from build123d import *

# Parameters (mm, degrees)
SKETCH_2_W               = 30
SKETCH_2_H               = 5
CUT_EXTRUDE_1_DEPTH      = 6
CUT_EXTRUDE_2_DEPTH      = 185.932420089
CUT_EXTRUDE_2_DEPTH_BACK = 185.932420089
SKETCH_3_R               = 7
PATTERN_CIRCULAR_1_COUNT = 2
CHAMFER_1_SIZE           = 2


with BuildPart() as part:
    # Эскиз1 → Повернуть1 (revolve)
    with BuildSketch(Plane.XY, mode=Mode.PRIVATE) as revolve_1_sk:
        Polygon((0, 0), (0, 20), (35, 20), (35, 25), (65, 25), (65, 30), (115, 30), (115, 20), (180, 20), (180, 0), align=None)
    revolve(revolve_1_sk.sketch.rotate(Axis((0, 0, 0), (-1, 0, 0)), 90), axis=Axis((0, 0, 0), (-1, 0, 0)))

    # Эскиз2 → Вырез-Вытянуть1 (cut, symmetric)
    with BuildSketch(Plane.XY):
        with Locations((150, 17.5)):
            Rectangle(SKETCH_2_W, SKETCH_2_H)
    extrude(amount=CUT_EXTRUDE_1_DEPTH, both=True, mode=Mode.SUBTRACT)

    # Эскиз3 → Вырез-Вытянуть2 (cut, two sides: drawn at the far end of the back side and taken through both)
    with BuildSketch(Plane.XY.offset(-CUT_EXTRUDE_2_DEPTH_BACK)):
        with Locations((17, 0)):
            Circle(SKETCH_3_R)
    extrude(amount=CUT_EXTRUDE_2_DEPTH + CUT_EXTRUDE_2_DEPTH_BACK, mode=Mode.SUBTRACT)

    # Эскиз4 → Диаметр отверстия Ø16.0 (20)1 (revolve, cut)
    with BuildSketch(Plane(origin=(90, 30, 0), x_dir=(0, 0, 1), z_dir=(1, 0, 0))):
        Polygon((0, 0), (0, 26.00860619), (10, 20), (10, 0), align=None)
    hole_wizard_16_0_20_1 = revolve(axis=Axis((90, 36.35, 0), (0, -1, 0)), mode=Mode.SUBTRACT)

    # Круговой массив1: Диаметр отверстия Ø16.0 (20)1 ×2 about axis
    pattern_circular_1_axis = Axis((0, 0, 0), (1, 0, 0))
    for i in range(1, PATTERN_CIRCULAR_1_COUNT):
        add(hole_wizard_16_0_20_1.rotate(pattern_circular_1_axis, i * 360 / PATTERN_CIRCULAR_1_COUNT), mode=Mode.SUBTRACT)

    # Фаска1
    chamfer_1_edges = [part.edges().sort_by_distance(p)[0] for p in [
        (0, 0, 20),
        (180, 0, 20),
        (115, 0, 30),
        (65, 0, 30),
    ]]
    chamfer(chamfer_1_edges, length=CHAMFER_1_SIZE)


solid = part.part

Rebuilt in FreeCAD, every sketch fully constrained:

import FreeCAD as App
import Part
import Sketcher
Q = App.Units.Quantity


def edges_at(feature, points):
    """Names of the edges that pass closest to the given points."""
    edges = feature.Shape.Edges
    near = lambda p: min(range(len(edges)), key=lambda i: edges[i].distToShape(Part.Vertex(*p))[0])
    return sorted({f"Edge{near(p) + 1}" for p in points})

doc = App.newDocument("Part")
params = doc.addObject("Spreadsheet::Sheet", "Params")
for row, (alias, value) in enumerate([
    ("sketch1_width", "180 mm"),
    ("sketch1_width2", "65 mm"),
    ("sketch1_width3", "50 mm"),
    ("sketch1_width4", "30 mm"),
    ("sketch1_height", "20 mm"),
    ("revolution_angle", "360 deg"),
    ("sketch2_width", "30 mm"),
    ("sketch2_height", "5 mm"),
    ("pocket1_length", "12 mm"),
    ("sketch3_diameter", "14 mm"),
    ("sketch4_width", "20 mm"),
    ("sketch4_height", "10 mm"),
    ("groove_angle", "360 deg"),
    ("chamfer_size", "2 mm"),
], start=1):
    params.set(f"A{row}", alias)
    params.set(f"B{row}", "=" + value)
    params.setAlias(f"B{row}", alias)

body = doc.addObject("PartDesign::Body", "Body")

# Sketch on XY plane
sketch1 = body.newObject("Sketcher::SketchObject", "Sketch")
sketch1.AttachmentSupport = (doc.getObject("XY_Plane"), [""])
sketch1.MapMode = "FlatFace"
sketch1.addGeometry(Part.LineSegment(App.Vector(0, 20, 0), App.Vector(0, 0, 0)), False)
sketch1.addGeometry(Part.LineSegment(App.Vector(0, 0, 0), App.Vector(180, 0, 0)), False)
sketch1.addGeometry(Part.LineSegment(App.Vector(180, 0, 0), App.Vector(180, 20, 0)), False)
sketch1.addGeometry(Part.LineSegment(App.Vector(180, 20, 0), App.Vector(115, 20, 0)), False)
sketch1.addGeometry(Part.LineSegment(App.Vector(115, 20, 0), App.Vector(115, 30, 0)), False)
sketch1.addGeometry(Part.LineSegment(App.Vector(115, 30, 0), App.Vector(65, 30, 0)), False)
sketch1.addGeometry(Part.LineSegment(App.Vector(65, 30, 0), App.Vector(65, 25, 0)), False)
sketch1.addGeometry(Part.LineSegment(App.Vector(65, 25, 0), App.Vector(35, 25, 0)), False)
sketch1.addGeometry(Part.LineSegment(App.Vector(35, 25, 0), App.Vector(35, 20, 0)), False)
sketch1.addGeometry(Part.LineSegment(App.Vector(35, 20, 0), App.Vector(0, 20, 0)), False)
sketch1.addConstraint(Sketcher.Constraint("Coincident", 0, 2, 1, 1))
sketch1.addConstraint(Sketcher.Constraint("Coincident", 1, 2, 2, 1))
sketch1.addConstraint(Sketcher.Constraint("Coincident", 2, 2, 3, 1))
sketch1.addConstraint(Sketcher.Constraint("Coincident", 3, 2, 4, 1))
sketch1.addConstraint(Sketcher.Constraint("Coincident", 4, 2, 5, 1))
sketch1.addConstraint(Sketcher.Constraint("Coincident", 5, 2, 6, 1))
sketch1.addConstraint(Sketcher.Constraint("Coincident", 6, 2, 7, 1))
sketch1.addConstraint(Sketcher.Constraint("Coincident", 7, 2, 8, 1))
sketch1.addConstraint(Sketcher.Constraint("Coincident", 8, 2, 9, 1))
sketch1.addConstraint(Sketcher.Constraint("Coincident", 9, 2, 0, 1))
sketch1.addConstraint(Sketcher.Constraint("Vertical", 0))
sketch1.addConstraint(Sketcher.Constraint("Horizontal", 1))
sketch1.addConstraint(Sketcher.Constraint("Vertical", 2))
sketch1.addConstraint(Sketcher.Constraint("Horizontal", 3))
sketch1.addConstraint(Sketcher.Constraint("Vertical", 4))
sketch1.addConstraint(Sketcher.Constraint("Horizontal", 5))
sketch1.addConstraint(Sketcher.Constraint("Vertical", 6))
sketch1.addConstraint(Sketcher.Constraint("Horizontal", 7))
sketch1.addConstraint(Sketcher.Constraint("Vertical", 8))
sketch1.addConstraint(Sketcher.Constraint("Horizontal", 9))
sketch1.addConstraint(Sketcher.Constraint("Coincident", 0, 2, -1, 1))
sketch1.addConstraint(Sketcher.Constraint("Horizontal", 3, 2, 8, 2))
sketch1.addConstraint(Sketcher.Constraint("Equal", 6, 8))
sketch1.addConstraint(Sketcher.Constraint("DistanceX", 1, 1, 1, 2, Q("180 mm")))
sketch1.addConstraint(Sketcher.Constraint("DistanceX", 3, 2, 3, 1, Q("65 mm")))
sketch1.addConstraint(Sketcher.Constraint("DistanceX", 5, 2, 5, 1, Q("50 mm")))
sketch1.addConstraint(Sketcher.Constraint("DistanceX", 7, 2, 7, 1, Q("30 mm")))
sketch1.addConstraint(Sketcher.Constraint("DistanceY", 0, 2, 0, 1, Q("20 mm")))
sketch1.addConstraint(Sketcher.Constraint("DistanceY", 4, 1, 4, 2, Q("10 mm")))
sketch1.setExpression("Constraints[23]", "Params.sketch1_width")
sketch1.setExpression("Constraints[24]", "Params.sketch1_width2")
sketch1.setExpression("Constraints[25]", "Params.sketch1_width3")
sketch1.setExpression("Constraints[26]", "Params.sketch1_width4")
sketch1.setExpression("Constraints[27]", "Params.sketch1_height")
revolution = body.newObject("PartDesign::Revolution", "Revolution")
revolution.Profile = sketch1
revolution.ReferenceAxis = (sketch1, ["H_Axis"])
revolution.setExpression("Angle", "Params.revolution_angle")

# Sketch on XY plane
sketch2 = body.newObject("Sketcher::SketchObject", "Sketch001")
sketch2.AttachmentSupport = (doc.getObject("XY_Plane"), [""])
sketch2.MapMode = "FlatFace"
sketch2.addGeometry(Part.LineSegment(App.Vector(135, 20, 0), App.Vector(135, 15, 0)), False)
sketch2.addGeometry(Part.LineSegment(App.Vector(135, 15, 0), App.Vector(165, 15, 0)), False)
sketch2.addGeometry(Part.LineSegment(App.Vector(165, 15, 0), App.Vector(165, 20, 0)), False)
sketch2.addGeometry(Part.LineSegment(App.Vector(165, 20, 0), App.Vector(135, 20, 0)), False)
sketch2.addConstraint(Sketcher.Constraint("Coincident", 0, 2, 1, 1))
sketch2.addConstraint(Sketcher.Constraint("Coincident", 1, 2, 2, 1))
sketch2.addConstraint(Sketcher.Constraint("Coincident", 2, 2, 3, 1))
sketch2.addConstraint(Sketcher.Constraint("Coincident", 3, 2, 0, 1))
sketch2.addConstraint(Sketcher.Constraint("Vertical", 0))
sketch2.addConstraint(Sketcher.Constraint("Horizontal", 1))
sketch2.addConstraint(Sketcher.Constraint("Vertical", 2))
sketch2.addConstraint(Sketcher.Constraint("Horizontal", 3))
sketch2.addConstraint(Sketcher.Constraint("DistanceX", 1, 1, 1, 2, Q("30 mm")))
sketch2.addConstraint(Sketcher.Constraint("DistanceY", 0, 2, 0, 1, Q("5 mm")))
sketch2.addConstraint(Sketcher.Constraint("DistanceX", -1, 1, 0, 2, Q("135 mm")))
sketch2.addConstraint(Sketcher.Constraint("DistanceY", -1, 1, 0, 2, Q("15 mm")))
sketch2.setExpression("Constraints[8]", "Params.sketch2_width")
sketch2.setExpression("Constraints[9]", "Params.sketch2_height")
pocket1 = body.newObject("PartDesign::Pocket", "Pocket")
pocket1.Profile = sketch2
pocket1.setExpression("Length", "Params.pocket1_length")
pocket1.Midplane = True

# Sketch on XY plane
sketch3 = body.newObject("Sketcher::SketchObject", "Sketch002")
sketch3.AttachmentSupport = (doc.getObject("XY_Plane"), [""])
sketch3.MapMode = "FlatFace"
sketch3.addGeometry(Part.Circle(App.Vector(17, 0, 0), App.Vector(0, 0, 1), 7), False)
sketch3.addConstraint(Sketcher.Constraint("PointOnObject", 0, 3, -1))
sketch3.addConstraint(Sketcher.Constraint("Diameter", 0, Q("14 mm")))
sketch3.addConstraint(Sketcher.Constraint("DistanceX", -1, 1, 0, 3, Q("17 mm")))
sketch3.setExpression("Constraints[1]", "Params.sketch3_diameter")
pocket2 = body.newObject("PartDesign::Pocket", "Pocket001")
pocket2.Profile = sketch3
pocket2.Type = "ThroughAll"
pocket2.Midplane = True

# Sketch on YZ plane
sketch4 = body.newObject("Sketcher::SketchObject", "Sketch003")
sketch4.AttachmentSupport = (doc.getObject("YZ_Plane"), [""])
sketch4.MapMode = "FlatFace"
sketch4.AttachmentOffset = App.Placement(App.Vector(0, 0, 90), App.Rotation())
sketch4.addGeometry(Part.LineSegment(App.Vector(4, 0, 0), App.Vector(30, 0, 0)), False)
sketch4.addGeometry(Part.LineSegment(App.Vector(30, 0, 0), App.Vector(30, 10, 0)), False)
sketch4.addGeometry(Part.LineSegment(App.Vector(30, 10, 0), App.Vector(10, 10, 0)), False)
sketch4.addGeometry(Part.LineSegment(App.Vector(10, 10, 0), App.Vector(4, 0, 0)), False)
sketch4.addConstraint(Sketcher.Constraint("Coincident", 0, 2, 1, 1))
sketch4.addConstraint(Sketcher.Constraint("Coincident", 1, 2, 2, 1))
sketch4.addConstraint(Sketcher.Constraint("Coincident", 2, 2, 3, 1))
sketch4.addConstraint(Sketcher.Constraint("Coincident", 3, 2, 0, 1))
sketch4.addConstraint(Sketcher.Constraint("Horizontal", 0))
sketch4.addConstraint(Sketcher.Constraint("Vertical", 1))
sketch4.addConstraint(Sketcher.Constraint("Horizontal", 2))
sketch4.addConstraint(Sketcher.Constraint("PointOnObject", 0, 2, -1))
sketch4.addConstraint(Sketcher.Constraint("DistanceX", 2, 2, 2, 1, Q("20 mm")))
sketch4.addConstraint(Sketcher.Constraint("DistanceY", 1, 1, 1, 2, Q("10 mm")))
sketch4.addConstraint(Sketcher.Constraint("Angle", 3, Q("-121 deg")))
sketch4.addConstraint(Sketcher.Constraint("DistanceX", -1, 1, 0, 2, Q("30 mm")))
sketch4.setExpression("Constraints[8]", "Params.sketch4_width")
sketch4.setExpression("Constraints[9]", "Params.sketch4_height")
groove = body.newObject("PartDesign::Groove", "Groove")
groove.Profile = sketch4
groove.ReferenceAxis = (sketch4, ["H_Axis"])
groove.setExpression("Angle", "Params.groove_angle")
doc.recompute()

polarpattern = body.newObject("PartDesign::PolarPattern", "PolarPattern")
polarpattern.Originals = [groove]
polarpattern.Axis = (doc.getObject("X_Axis"), [""])
polarpattern.Angle = 360
polarpattern.Occurrences = 2
body.Tip = polarpattern
doc.recompute()

chamfer = body.newObject("PartDesign::Chamfer", "Chamfer")
chamfer.Base = (polarpattern, edges_at(polarpattern, [
    (0, 0, 20),
    (180, 0, 20),
    (115, 0, 30),
    (65, 0, 30),
]))
chamfer.setExpression("Size", "Params.chamfer_size")

doc.recompute()
